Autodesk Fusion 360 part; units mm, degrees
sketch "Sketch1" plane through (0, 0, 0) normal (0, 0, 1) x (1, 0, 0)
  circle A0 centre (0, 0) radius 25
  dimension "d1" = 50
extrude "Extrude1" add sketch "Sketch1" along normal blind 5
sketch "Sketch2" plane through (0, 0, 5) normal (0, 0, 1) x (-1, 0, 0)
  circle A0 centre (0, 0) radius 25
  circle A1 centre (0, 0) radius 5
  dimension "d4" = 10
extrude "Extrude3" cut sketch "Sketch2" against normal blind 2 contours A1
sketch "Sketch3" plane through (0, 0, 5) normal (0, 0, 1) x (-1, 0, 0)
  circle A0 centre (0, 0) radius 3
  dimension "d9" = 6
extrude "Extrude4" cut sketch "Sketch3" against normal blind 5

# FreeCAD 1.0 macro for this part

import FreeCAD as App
import Part
import Sketcher
Q = App.Units.Quantity

doc = App.newDocument("Part")
body = doc.addObject("PartDesign::Body", "Body")

sketch1 = body.newObject("Sketcher::SketchObject", "Sketch")
sketch1.AttachmentSupport = (doc.getObject("XY_Plane"), [""])
sketch1.MapMode = "FlatFace"
sketch1.addGeometry(Part.Circle(App.Vector(0, 0, 0), App.Vector(0, 0, 1), 25), False)
sketch1.addConstraint(Sketcher.Constraint("Coincident", 0, 3, -1, 1))
sketch1.addConstraint(Sketcher.Constraint("Diameter", 0, Q("50 mm")))
pad1 = body.newObject("PartDesign::Pad", "Pad")
pad1.Profile = sketch1
pad1.Length = 5

sketch2 = body.newObject("Sketcher::SketchObject", "Sketch001")
sketch2.AttachmentSupport = (doc.getObject("XY_Plane"), [""])
sketch2.MapMode = "FlatFace"
sketch2.AttachmentOffset = App.Placement(App.Vector(0, 0, 5), App.Rotation())
sketch2.addGeometry(Part.Circle(App.Vector(0, 0, 0), App.Vector(0, 0, 1), 5), False)
sketch2.addConstraint(Sketcher.Constraint("Coincident", 0, 3, -1, 1))
sketch2.addConstraint(Sketcher.Constraint("Diameter", 0, Q("10 mm")))
pocket1 = body.newObject("PartDesign::Pocket", "Pocket")
pocket1.Profile = sketch2
pocket1.Length = 2

sketch3 = body.newObject("Sketcher::SketchObject", "Sketch002")
sketch3.AttachmentSupport = (doc.getObject("XY_Plane"), [""])
sketch3.MapMode = "FlatFace"
sketch3.AttachmentOffset = App.Placement(App.Vector(0, 0, 5), App.Rotation())
sketch3.addGeometry(Part.Circle(App.Vector(0, 0, 0), App.Vector(0, 0, 1), 3), False)
sketch3.addConstraint(Sketcher.Constraint("Coincident", 0, 3, -1, 1))
sketch3.addConstraint(Sketcher.Constraint("Diameter", 0, Q("6 mm")))
pocket2 = body.newObject("PartDesign::Pocket", "Pocket001")
pocket2.Profile = sketch3
pocket2.Length = 5

doc.recompute()
